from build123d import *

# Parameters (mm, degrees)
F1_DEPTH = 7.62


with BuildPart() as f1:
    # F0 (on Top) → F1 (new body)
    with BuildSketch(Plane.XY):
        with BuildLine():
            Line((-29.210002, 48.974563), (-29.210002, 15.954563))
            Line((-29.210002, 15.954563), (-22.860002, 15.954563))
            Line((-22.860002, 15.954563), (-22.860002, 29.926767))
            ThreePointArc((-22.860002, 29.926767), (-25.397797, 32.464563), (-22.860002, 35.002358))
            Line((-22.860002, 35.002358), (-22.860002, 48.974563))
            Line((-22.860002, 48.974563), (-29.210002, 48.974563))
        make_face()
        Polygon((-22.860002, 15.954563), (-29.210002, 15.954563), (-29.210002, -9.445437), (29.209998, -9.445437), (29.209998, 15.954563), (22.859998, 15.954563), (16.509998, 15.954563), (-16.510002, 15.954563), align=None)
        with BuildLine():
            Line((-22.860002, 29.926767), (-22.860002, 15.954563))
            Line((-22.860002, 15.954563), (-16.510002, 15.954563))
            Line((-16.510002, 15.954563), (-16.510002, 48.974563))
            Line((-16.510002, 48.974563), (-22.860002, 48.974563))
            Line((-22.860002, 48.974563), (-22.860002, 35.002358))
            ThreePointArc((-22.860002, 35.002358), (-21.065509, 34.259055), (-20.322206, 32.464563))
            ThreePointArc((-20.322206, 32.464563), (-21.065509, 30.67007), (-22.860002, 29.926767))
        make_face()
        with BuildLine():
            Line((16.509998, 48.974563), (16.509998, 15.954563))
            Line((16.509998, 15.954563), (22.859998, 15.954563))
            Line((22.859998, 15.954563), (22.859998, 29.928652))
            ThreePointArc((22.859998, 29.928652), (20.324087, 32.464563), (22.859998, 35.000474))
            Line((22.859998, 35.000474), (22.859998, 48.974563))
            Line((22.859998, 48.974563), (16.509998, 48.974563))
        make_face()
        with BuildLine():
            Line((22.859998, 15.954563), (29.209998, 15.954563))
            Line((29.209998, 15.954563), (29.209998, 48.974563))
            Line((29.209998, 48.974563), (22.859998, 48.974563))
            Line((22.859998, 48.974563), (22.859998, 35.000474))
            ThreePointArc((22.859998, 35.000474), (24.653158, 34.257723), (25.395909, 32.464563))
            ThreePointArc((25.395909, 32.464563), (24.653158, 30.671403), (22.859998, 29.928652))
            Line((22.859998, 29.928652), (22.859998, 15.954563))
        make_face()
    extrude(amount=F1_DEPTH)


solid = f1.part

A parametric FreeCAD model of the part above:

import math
import FreeCAD as App
import Part
import Sketcher

V = App.Vector
Q = App.Units.Quantity


def add_polygon(sketch, points):
    """Adds a closed chain of lines whose ends are joined by coincident constraints."""
    first, n = sketch.GeometryCount, len(points)
    for a, b in zip(points, points[1:] + points[:1]):
        sketch.addGeometry(Part.LineSegment(App.Vector(*a, 0), App.Vector(*b, 0)), False)
    for i in range(n):
        sketch.addConstraint(Sketcher.Constraint("Coincident", first + i, 2, first + (i + 1) % n, 1))

doc = App.newDocument("Part")
body = doc.addObject("PartDesign::Body", "Body")

# Sketch on XY plane
sketch1 = doc.addObject("Sketcher::SketchObject", "Sketch")
body.addObject(sketch1)
sketch1.AttachmentSupport = (doc.XY_Plane, [""])
sketch1.MapMode = "FlatFace"
add_polygon(sketch1, [(-29.2, 49), (-29.2, -9.4), (29.2, -9.4), (29.2, 49), (16.5, 49), (16.5, 16), (-16.5, 16), (-16.5, 49)])  # lines 0-7
sketch1.addGeometry(Part.ArcOfCircle(Part.Circle(V(22.9, 32.5, 0), V(0, 0, 1), 2.5), math.radians(90), math.radians(270)), False)  # 8
sketch1.addGeometry(Part.ArcOfCircle(Part.Circle(V(22.9, 32.5, 0), V(0, 0, 1), 2.5), math.radians(0), math.radians(90)), False)  # 9
sketch1.addGeometry(Part.ArcOfCircle(Part.Circle(V(22.9, 32.5, 0), V(0, 0, 1), 2.5), math.radians(-90), math.radians(0)), False)  # 10
sketch1.addGeometry(Part.ArcOfCircle(Part.Circle(V(-22.9, 32.5, 0), V(0, 0, 1), 2.5), math.radians(90), math.radians(270)), False)  # 11
sketch1.addGeometry(Part.ArcOfCircle(Part.Circle(V(-22.9, 32.5, 0), V(0, 0, 1), 2.5), math.radians(0), math.radians(90)), False)  # 12
sketch1.addGeometry(Part.ArcOfCircle(Part.Circle(V(-22.9, 32.5, 0), V(0, 0, 1), 2.5), math.radians(-90), math.radians(0)), False)  # 13
sketch1.addConstraint([
    Sketcher.Constraint("Tangent", 8, 1, 9, 2),
    Sketcher.Constraint("Tangent", 9, 1, 10, 2),
    Sketcher.Constraint("Tangent", 10, 1, 8, 2),
    Sketcher.Constraint("Tangent", 11, 1, 12, 2),
    Sketcher.Constraint("Tangent", 12, 1, 13, 2),
    Sketcher.Constraint("Tangent", 13, 1, 11, 2),
    Sketcher.Constraint("Vertical", 0),
    Sketcher.Constraint("Horizontal", 1),
    Sketcher.Constraint("Vertical", 2),
    Sketcher.Constraint("Horizontal", 3),
    Sketcher.Constraint("Vertical", 4),
    Sketcher.Constraint("Horizontal", 5),
    Sketcher.Constraint("Vertical", 6),
    Sketcher.Constraint("Horizontal", 7),
    Sketcher.Constraint("Symmetric", 8, 3, 11, 3, -2),
    Sketcher.Constraint("Symmetric", 3, 2, 6, 2, -2),
    Sketcher.Constraint("Horizontal", 13, 3, 9, 1),
    Sketcher.Constraint("Horizontal", 9, 1, 12, 1),
    Sketcher.Constraint("Vertical", 10, 3, 8, 1),
    Sketcher.Constraint("Vertical", 8, 1, 10, 1),
    Sketcher.Constraint("Vertical", 13, 3, 11, 1),
    Sketcher.Constraint("Vertical", 11, 1, 13, 1),
    Sketcher.Constraint("Equal", 3, 7),
    Sketcher.Constraint("Equal", 1, 0),
    Sketcher.Constraint("Equal", 5, 4),
    Sketcher.Constraint("DistanceX", 1, 1, 1, 2, Q("2.3 in")),
    Sketcher.Constraint("DistanceX", 3, 2, 3, 1, Q("0.5 in")),
    Sketcher.Constraint("DistanceX", -1, 1, 8, 3, Q("0.8999999 in")),
    Sketcher.Constraint("DistanceY", 0, 2, 13, 3, Q("1.65 in")),
    Sketcher.Constraint("Radius", 8, 2.535911),
    Sketcher.Constraint("Radius", 11, 2.537796),
    Sketcher.Constraint("DistanceY", -1, 1, 8, 3, 32.464563),
])
pad1 = doc.addObject("PartDesign::Pad", "Pad")
body.addObject(pad1)
pad1.Profile = sketch1
pad1.Length = Q("0.3 in")

doc.recompute()
